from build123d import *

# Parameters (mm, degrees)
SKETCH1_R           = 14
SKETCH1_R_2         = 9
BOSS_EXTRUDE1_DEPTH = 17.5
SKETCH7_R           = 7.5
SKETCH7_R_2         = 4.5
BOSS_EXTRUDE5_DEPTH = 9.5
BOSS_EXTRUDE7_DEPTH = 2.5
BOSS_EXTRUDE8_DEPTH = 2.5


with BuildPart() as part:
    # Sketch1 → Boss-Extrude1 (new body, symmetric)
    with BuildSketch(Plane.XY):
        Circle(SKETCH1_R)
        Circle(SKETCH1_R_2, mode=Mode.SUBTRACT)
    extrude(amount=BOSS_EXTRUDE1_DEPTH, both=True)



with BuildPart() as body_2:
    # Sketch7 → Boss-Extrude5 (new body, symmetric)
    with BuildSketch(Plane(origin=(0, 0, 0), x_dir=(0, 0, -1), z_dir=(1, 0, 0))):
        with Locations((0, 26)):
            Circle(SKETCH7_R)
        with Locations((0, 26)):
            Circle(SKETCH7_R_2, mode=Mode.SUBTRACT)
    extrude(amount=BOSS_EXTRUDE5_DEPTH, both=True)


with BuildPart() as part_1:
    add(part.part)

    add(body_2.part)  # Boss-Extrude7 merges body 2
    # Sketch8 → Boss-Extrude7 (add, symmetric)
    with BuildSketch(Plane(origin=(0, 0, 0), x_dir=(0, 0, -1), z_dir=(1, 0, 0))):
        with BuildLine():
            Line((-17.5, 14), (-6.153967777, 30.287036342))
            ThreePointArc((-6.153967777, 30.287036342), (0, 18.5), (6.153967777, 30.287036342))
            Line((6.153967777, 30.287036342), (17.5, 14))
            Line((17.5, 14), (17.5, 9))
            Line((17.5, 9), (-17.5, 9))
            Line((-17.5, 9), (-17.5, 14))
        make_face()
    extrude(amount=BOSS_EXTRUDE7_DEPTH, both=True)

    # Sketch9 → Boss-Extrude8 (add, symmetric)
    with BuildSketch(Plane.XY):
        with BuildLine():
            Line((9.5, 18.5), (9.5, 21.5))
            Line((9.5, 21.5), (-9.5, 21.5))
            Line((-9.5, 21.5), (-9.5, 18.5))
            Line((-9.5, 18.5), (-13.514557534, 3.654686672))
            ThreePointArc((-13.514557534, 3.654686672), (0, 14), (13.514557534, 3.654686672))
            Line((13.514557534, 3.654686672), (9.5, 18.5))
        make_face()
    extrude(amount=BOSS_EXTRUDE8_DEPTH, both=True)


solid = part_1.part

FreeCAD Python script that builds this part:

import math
import FreeCAD as App
import Part
import Sketcher

V = App.Vector

doc = App.newDocument("Part")
params = doc.addObject("Spreadsheet::Sheet", "Params")
for row, (alias, value) in enumerate([
    ("sketch1_diameter", "28 mm"),
    ("sketch1_diameter2", "18 mm"),
    ("pad1_length", "35 mm"),
    ("sketch2_diameter", "15 mm"),
    ("sketch2_diameter2", "9 mm"),
    ("pad2_length", "19 mm"),
    ("sketch3_radius", "7.5 mm"),
    ("sketch3_width", "5 mm"),
    ("sketch3_height", "35 mm"),
    ("pad3_length", "5 mm"),
    ("sketch4_radius", "14 mm"),
    ("sketch4_width", "19 mm"),
    ("sketch4_height", "3 mm"),
    ("pad4_length", "5 mm"),
], start=1):
    params.set(f"A{row}", alias)
    params.set(f"B{row}", "=" + value)
    params.setAlias(f"B{row}", alias)

body = doc.addObject("PartDesign::Body", "Body")

sketch1 = body.newObject("Sketcher::SketchObject", "Sketch")
sketch1.AttachmentSupport = (doc.getObject("XY_Plane"), [""])
sketch1.MapMode = "FlatFace"
sketch1.addGeometry([
    Part.Circle(V(0, 0, 0), V(0, 0, 1), 14),
    Part.Circle(V(0, 0, 0), V(0, 0, 1), 9),
], False)
sketch1.addConstraint([
    Sketcher.Constraint("Coincident", 0, 3, -1, 1),
    Sketcher.Constraint("Coincident", 1, 3, -1, 1),
    Sketcher.Constraint("Diameter", 0, 28.0),
    Sketcher.Constraint("Diameter", 1, 18.0),
])
sketch1.setExpression("Constraints[2]", "Params.sketch1_diameter")
sketch1.setExpression("Constraints[3]", "Params.sketch1_diameter2")
pad1 = body.newObject("PartDesign::Pad", "Pad")
pad1.Profile = sketch1
pad1.setExpression("Length", "Params.pad1_length")
pad1.Midplane = True
body2 = doc.addObject("PartDesign::Body", "Body001")

sketch2 = body2.newObject("Sketcher::SketchObject", "Sketch001")
sketch2.AttachmentSupport = (doc.getObject("YZ_Plane001"), [""])
sketch2.MapMode = "FlatFace"
sketch2.addGeometry([
    Part.Circle(V(26, 0, 0), V(0, 0, 1), 7.5),
    Part.Circle(V(26, 0, 0), V(0, 0, 1), 4.5),
], False)
sketch2.addConstraint([
    Sketcher.Constraint("Coincident", 1, 3, 0, 3),
    Sketcher.Constraint("PointOnObject", 0, 3, -1),
    Sketcher.Constraint("Diameter", 0, 15.0),
    Sketcher.Constraint("Diameter", 1, 9.0),
    Sketcher.Constraint("DistanceX", -1, 1, 0, 3, 26.0),
])
sketch2.setExpression("Constraints[2]", "Params.sketch2_diameter")
sketch2.setExpression("Constraints[3]", "Params.sketch2_diameter2")
pad2 = body2.newObject("PartDesign::Pad", "Pad001")
pad2.Profile = sketch2
pad2.setExpression("Length", "Params.pad2_length")
pad2.Midplane = True
body.AllowCompound = True
doc.recompute()

boolean = body.newObject("PartDesign::Boolean", "Boolean")
boolean.Type = "Fuse"
boolean.addObjects([body2])

sketch3 = body.newObject("Sketcher::SketchObject", "Sketch002")
sketch3.AttachmentSupport = (doc.getObject("YZ_Plane"), [""])
sketch3.MapMode = "FlatFace"
sketch3.addGeometry([
    Part.LineSegment(V(30, 6, 0), V(14, 18, 0)),
    Part.LineSegment(V(14, 18, 0), V(9, 18, 0)),
    Part.LineSegment(V(9, 18, 0), V(9, -18, 0)),
    Part.LineSegment(V(9, -18, 0), V(14, -18, 0)),
    Part.LineSegment(V(14, -18, 0), V(30, -6, 0)),
    Part.ArcOfCircle(Part.Circle(V(26, 0, 0), V(0, 0, 1), 8), math.radians(55), math.radians(305)),
], False)
sketch3.addConstraint([
    Sketcher.Constraint("Coincident", 0, 2, 1, 1),
    Sketcher.Constraint("Coincident", 1, 2, 2, 1),
    Sketcher.Constraint("Coincident", 2, 2, 3, 1),
    Sketcher.Constraint("Coincident", 3, 2, 4, 1),
    Sketcher.Constraint("Tangent", 4, 2, 5, 2),
    Sketcher.Constraint("Tangent", 5, 1, 0, 1),
    Sketcher.Constraint("Horizontal", 1),
    Sketcher.Constraint("Vertical", 2),
    Sketcher.Constraint("Horizontal", 3),
    Sketcher.Constraint("Symmetric", 0, 2, 3, 2, -1),
    Sketcher.Constraint("PointOnObject", 5, 3, -1),
    Sketcher.Constraint("Radius", 5, 7.5),
    Sketcher.Constraint("DistanceX", 1, 2, 1, 1, 5.0),
    Sketcher.Constraint("DistanceY", 2, 2, 2, 1, 35.0),
    Sketcher.Constraint("DistanceX", -1, 1, 5, 3, 26.0),
    Sketcher.Constraint("DistanceX", -1, 1, 0, 2, 14.0),
])
sketch3.setExpression("Constraints[11]", "Params.sketch3_radius")
sketch3.setExpression("Constraints[12]", "Params.sketch3_width")
sketch3.setExpression("Constraints[13]", "Params.sketch3_height")
pad3 = body.newObject("PartDesign::Pad", "Pad002")
pad3.Profile = sketch3
pad3.setExpression("Length", "Params.pad3_length")
pad3.Midplane = True

sketch4 = body.newObject("Sketcher::SketchObject", "Sketch003")
sketch4.AttachmentSupport = (doc.getObject("XY_Plane"), [""])
sketch4.MapMode = "FlatFace"
sketch4.addGeometry([
    Part.LineSegment(V(9.5, 18.5, 0), V(9.5, 21.5, 0)),
    Part.LineSegment(V(9.5, 21.5, 0), V(-9.5, 21.5, 0)),
    Part.LineSegment(V(-9.5, 21.5, 0), V(-9.5, 18.5, 0)),
    Part.LineSegment(V(-9.5, 18.5, 0), V(-13.5, 3.7, 0)),
    Part.ArcOfCircle(Part.Circle(V(0, 0, 0), V(0, 0, 1), 14), math.radians(15), math.radians(165)),
    Part.LineSegment(V(13.5, 3.7, 0), V(9.5, 18.5, 0)),
], False)
sketch4.addConstraint([
    Sketcher.Constraint("Coincident", 0, 2, 1, 1),
    Sketcher.Constraint("Coincident", 1, 2, 2, 1),
    Sketcher.Constraint("Coincident", 2, 2, 3, 1),
    Sketcher.Constraint("Tangent", 3, 2, 4, 2),
    Sketcher.Constraint("Tangent", 4, 1, 5, 1),
    Sketcher.Constraint("Coincident", 5, 2, 0, 1),
    Sketcher.Constraint("Vertical", 0),
    Sketcher.Constraint("Horizontal", 1),
    Sketcher.Constraint("Vertical", 2),
    Sketcher.Constraint("Coincident", 4, 3, -1, 1),
    Sketcher.Constraint("Symmetric", 2, 2, 5, 2, -2),
    Sketcher.Constraint("Radius", 4, 14.0),
    Sketcher.Constraint("DistanceX", 1, 2, 1, 1, 19.0),
    Sketcher.Constraint("DistanceY", 0, 1, 0, 2, 3.0),
    Sketcher.Constraint("DistanceY", -1, 1, 0, 2, 21.5),
])
sketch4.setExpression("Constraints[11]", "Params.sketch4_radius")
sketch4.setExpression("Constraints[12]", "Params.sketch4_width")
sketch4.setExpression("Constraints[13]", "Params.sketch4_height")
pad4 = body.newObject("PartDesign::Pad", "Pad003")
pad4.Profile = sketch4
pad4.setExpression("Length", "Params.pad4_length")
pad4.Midplane = True

doc.recompute()
